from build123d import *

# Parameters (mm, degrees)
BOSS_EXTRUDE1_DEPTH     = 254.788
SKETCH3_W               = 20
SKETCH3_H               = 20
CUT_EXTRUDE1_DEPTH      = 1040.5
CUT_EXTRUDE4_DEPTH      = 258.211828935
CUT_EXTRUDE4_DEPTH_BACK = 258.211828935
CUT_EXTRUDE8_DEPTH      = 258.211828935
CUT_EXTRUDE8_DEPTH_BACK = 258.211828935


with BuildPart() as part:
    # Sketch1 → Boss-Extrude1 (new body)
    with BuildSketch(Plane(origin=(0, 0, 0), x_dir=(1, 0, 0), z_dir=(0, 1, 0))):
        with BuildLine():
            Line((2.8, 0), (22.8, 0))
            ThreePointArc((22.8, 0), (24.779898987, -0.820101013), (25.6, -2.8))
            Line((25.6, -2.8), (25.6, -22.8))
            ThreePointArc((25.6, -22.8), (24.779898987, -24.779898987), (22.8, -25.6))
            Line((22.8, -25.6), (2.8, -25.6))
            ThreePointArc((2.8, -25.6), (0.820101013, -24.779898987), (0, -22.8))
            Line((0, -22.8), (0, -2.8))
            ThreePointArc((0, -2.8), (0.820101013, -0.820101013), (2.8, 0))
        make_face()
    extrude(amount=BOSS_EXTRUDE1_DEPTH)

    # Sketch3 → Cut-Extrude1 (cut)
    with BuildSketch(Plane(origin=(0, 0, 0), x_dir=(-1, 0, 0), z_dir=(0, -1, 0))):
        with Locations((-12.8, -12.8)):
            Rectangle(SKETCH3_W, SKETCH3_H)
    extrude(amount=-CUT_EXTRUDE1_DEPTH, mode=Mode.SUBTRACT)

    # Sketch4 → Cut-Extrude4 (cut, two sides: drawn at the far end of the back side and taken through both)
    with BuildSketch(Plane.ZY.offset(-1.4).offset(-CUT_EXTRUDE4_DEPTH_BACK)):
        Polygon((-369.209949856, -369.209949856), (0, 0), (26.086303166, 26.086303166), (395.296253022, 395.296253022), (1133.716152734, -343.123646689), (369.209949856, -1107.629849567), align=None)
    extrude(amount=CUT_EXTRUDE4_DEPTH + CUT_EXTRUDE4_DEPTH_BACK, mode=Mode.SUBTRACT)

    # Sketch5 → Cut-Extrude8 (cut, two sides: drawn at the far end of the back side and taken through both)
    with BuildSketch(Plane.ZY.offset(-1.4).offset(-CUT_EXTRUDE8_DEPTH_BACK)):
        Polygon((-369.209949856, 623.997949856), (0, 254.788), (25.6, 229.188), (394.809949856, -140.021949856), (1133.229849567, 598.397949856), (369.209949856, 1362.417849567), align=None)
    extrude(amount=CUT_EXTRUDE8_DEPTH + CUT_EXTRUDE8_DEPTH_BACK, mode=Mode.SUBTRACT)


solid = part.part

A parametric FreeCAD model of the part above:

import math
import FreeCAD as App
import Part
import Sketcher
Q = App.Units.Quantity


def add_polygon(sketch, points):
    """Adds a closed chain of lines whose ends are joined by coincident constraints."""
    first, n = sketch.GeometryCount, len(points)
    for a, b in zip(points, points[1:] + points[:1]):
        sketch.addGeometry(Part.LineSegment(App.Vector(*a, 0), App.Vector(*b, 0)), False)
    for i in range(n):
        sketch.addConstraint(Sketcher.Constraint("Coincident", first + i, 2, first + (i + 1) % n, 1))

doc = App.newDocument("Part")
body = doc.addObject("PartDesign::Body", "Body")

# Sketch on XZ plane
sketch1 = body.newObject("Sketcher::SketchObject", "Sketch")
sketch1.AttachmentSupport = (doc.getObject("XZ_Plane"), [""])
sketch1.MapMode = "FlatFace"
sketch1.addGeometry(Part.LineSegment(App.Vector(22.8, 0, 0), App.Vector(2.8, 0, 0)), False)
sketch1.addGeometry(Part.ArcOfCircle(Part.Circle(App.Vector(2.8, 2.8, 0), App.Vector(0, 0, 1), 2.8), math.radians(-180), math.radians(-90)), False)
sketch1.addGeometry(Part.LineSegment(App.Vector(0, 2.8, 0), App.Vector(0, 22.8, 0)), False)
sketch1.addGeometry(Part.ArcOfCircle(Part.Circle(App.Vector(2.8, 22.8, 0), App.Vector(0, 0, 1), 2.8), math.radians(90), math.radians(180)), False)
sketch1.addGeometry(Part.LineSegment(App.Vector(2.8, 25.6, 0), App.Vector(22.8, 25.6, 0)), False)
sketch1.addGeometry(Part.ArcOfCircle(Part.Circle(App.Vector(22.8, 22.8, 0), App.Vector(0, 0, 1), 2.8), math.radians(0), math.radians(90)), False)
sketch1.addGeometry(Part.LineSegment(App.Vector(25.6, 22.8, 0), App.Vector(25.6, 2.8, 0)), False)
sketch1.addGeometry(Part.ArcOfCircle(Part.Circle(App.Vector(22.8, 2.8, 0), App.Vector(0, 0, 1), 2.8), math.radians(-90), math.radians(0)), False)
sketch1.addConstraint(Sketcher.Constraint("Tangent", 0, 2, 1, 2))
sketch1.addConstraint(Sketcher.Constraint("Tangent", 1, 1, 2, 1))
sketch1.addConstraint(Sketcher.Constraint("Tangent", 2, 2, 3, 2))
sketch1.addConstraint(Sketcher.Constraint("Tangent", 3, 1, 4, 1))
sketch1.addConstraint(Sketcher.Constraint("Tangent", 4, 2, 5, 2))
sketch1.addConstraint(Sketcher.Constraint("Tangent", 5, 1, 6, 1))
sketch1.addConstraint(Sketcher.Constraint("Tangent", 6, 2, 7, 2))
sketch1.addConstraint(Sketcher.Constraint("Tangent", 7, 1, 0, 1))
sketch1.addConstraint(Sketcher.Constraint("Horizontal", 0))
sketch1.addConstraint(Sketcher.Constraint("Vertical", 2))
sketch1.addConstraint(Sketcher.Constraint("Horizontal", 4))
sketch1.addConstraint(Sketcher.Constraint("Vertical", 6))
sketch1.addConstraint(Sketcher.Constraint("Equal", 1, 3))
sketch1.addConstraint(Sketcher.Constraint("Equal", 3, 5))
sketch1.addConstraint(Sketcher.Constraint("Equal", 5, 7))
sketch1.addConstraint(Sketcher.Constraint("PointOnObject", 0, 2, -1))
sketch1.addConstraint(Sketcher.Constraint("PointOnObject", 1, 1, -2))
sketch1.addConstraint(Sketcher.Constraint("Equal", 4, 2))
sketch1.addConstraint(Sketcher.Constraint("Radius", 1, 2.8))
sketch1.addConstraint(Sketcher.Constraint("DistanceX", 0, 2, 0, 1, 20.0))
pad1 = body.newObject("PartDesign::Pad", "Pad")
pad1.Profile = sketch1
pad1.Length = 254.788
pad1.Reversed = True

# Sketch on XZ plane
sketch2 = body.newObject("Sketcher::SketchObject", "Sketch001")
sketch2.AttachmentSupport = (doc.getObject("XZ_Plane"), [""])
sketch2.MapMode = "FlatFace"
add_polygon(sketch2, [(23, 3), (23, 23), (3, 23), (3, 3)])  # lines 0-3
sketch2.addConstraint(Sketcher.Constraint("Vertical", 0))
sketch2.addConstraint(Sketcher.Constraint("Horizontal", 1))
sketch2.addConstraint(Sketcher.Constraint("Vertical", 2))
sketch2.addConstraint(Sketcher.Constraint("Horizontal", 3))
sketch2.addConstraint(Sketcher.Constraint("Equal", 3, 0))
sketch2.addConstraint(Sketcher.Constraint("DistanceX", 1, 2, 1, 1, 20.0))
sketch2.addConstraint(Sketcher.Constraint("DistanceX", -1, 1, 0, 2, 22.8))
sketch2.addConstraint(Sketcher.Constraint("DistanceY", -1, 1, 0, 2, 22.8))
pocket1 = body.newObject("PartDesign::Pocket", "Pocket")
pocket1.Profile = sketch2
pocket1.Length = 1040.5

# Sketch on YZ plane
sketch3 = body.newObject("Sketcher::SketchObject", "Sketch002")
sketch3.AttachmentSupport = (doc.getObject("YZ_Plane"), [""])
sketch3.MapMode = "FlatFace"
sketch3.AttachmentOffset = App.Placement(App.Vector(0, 0, 1.4), App.Rotation())
add_polygon(sketch3, [(395, 395), (-369, -369), (-1108, 369), (-343, 1134)])  # lines 0-3
sketch3.addConstraint(Sketcher.Constraint("Perpendicular", 0, 1))
sketch3.addConstraint(Sketcher.Constraint("Perpendicular", 1, 2))
sketch3.addConstraint(Sketcher.Constraint("Perpendicular", 2, 3))
sketch3.addConstraint(Sketcher.Constraint("Angle", 0, Q("-135 deg")))
sketch3.addConstraint(Sketcher.Constraint("DistanceX", 1, 2, 0, 2, 738.4199))
sketch3.addConstraint(Sketcher.Constraint("Distance", 0, 1081.175041))
sketch3.addConstraint(Sketcher.Constraint("DistanceX", 0, 2, -1, 1, 369.20995))
sketch3.addConstraint(Sketcher.Constraint("DistanceY", 0, 2, -1, 1, 369.20995))
pocket2 = body.newObject("PartDesign::Pocket", "Pocket001")
pocket2.Profile = sketch3
pocket2.Type = "ThroughAll"
pocket2.Midplane = True

# Sketch on YZ plane
sketch4 = body.newObject("Sketcher::SketchObject", "Sketch003")
sketch4.AttachmentSupport = (doc.getObject("YZ_Plane"), [""])
sketch4.MapMode = "FlatFace"
sketch4.AttachmentOffset = App.Placement(App.Vector(0, 0, 1.4), App.Rotation())
add_polygon(sketch4, [(624, -369), (-140, 395), (598, 1133), (1362, 369)])  # lines 0-3
sketch4.addConstraint(Sketcher.Constraint("Perpendicular", 0, 1))
sketch4.addConstraint(Sketcher.Constraint("Perpendicular", 1, 2))
sketch4.addConstraint(Sketcher.Constraint("Perpendicular", 2, 3))
sketch4.addConstraint(Sketcher.Constraint("Angle", 0, Q("135 deg")))
sketch4.addConstraint(Sketcher.Constraint("DistanceY", 2, 2, 0, 2, 25.6))
sketch4.addConstraint(Sketcher.Constraint("DistanceX", 0, 2, 1, 2, 738.4199))
sketch4.addConstraint(Sketcher.Constraint("DistanceX", 0, 2, -1, 1, 140.02195))
sketch4.addConstraint(Sketcher.Constraint("DistanceY", -1, 1, 0, 2, 394.80995))
pocket3 = body.newObject("PartDesign::Pocket", "Pocket002")
pocket3.Profile = sketch4
pocket3.Type = "ThroughAll"
pocket3.Midplane = True

doc.recompute()
